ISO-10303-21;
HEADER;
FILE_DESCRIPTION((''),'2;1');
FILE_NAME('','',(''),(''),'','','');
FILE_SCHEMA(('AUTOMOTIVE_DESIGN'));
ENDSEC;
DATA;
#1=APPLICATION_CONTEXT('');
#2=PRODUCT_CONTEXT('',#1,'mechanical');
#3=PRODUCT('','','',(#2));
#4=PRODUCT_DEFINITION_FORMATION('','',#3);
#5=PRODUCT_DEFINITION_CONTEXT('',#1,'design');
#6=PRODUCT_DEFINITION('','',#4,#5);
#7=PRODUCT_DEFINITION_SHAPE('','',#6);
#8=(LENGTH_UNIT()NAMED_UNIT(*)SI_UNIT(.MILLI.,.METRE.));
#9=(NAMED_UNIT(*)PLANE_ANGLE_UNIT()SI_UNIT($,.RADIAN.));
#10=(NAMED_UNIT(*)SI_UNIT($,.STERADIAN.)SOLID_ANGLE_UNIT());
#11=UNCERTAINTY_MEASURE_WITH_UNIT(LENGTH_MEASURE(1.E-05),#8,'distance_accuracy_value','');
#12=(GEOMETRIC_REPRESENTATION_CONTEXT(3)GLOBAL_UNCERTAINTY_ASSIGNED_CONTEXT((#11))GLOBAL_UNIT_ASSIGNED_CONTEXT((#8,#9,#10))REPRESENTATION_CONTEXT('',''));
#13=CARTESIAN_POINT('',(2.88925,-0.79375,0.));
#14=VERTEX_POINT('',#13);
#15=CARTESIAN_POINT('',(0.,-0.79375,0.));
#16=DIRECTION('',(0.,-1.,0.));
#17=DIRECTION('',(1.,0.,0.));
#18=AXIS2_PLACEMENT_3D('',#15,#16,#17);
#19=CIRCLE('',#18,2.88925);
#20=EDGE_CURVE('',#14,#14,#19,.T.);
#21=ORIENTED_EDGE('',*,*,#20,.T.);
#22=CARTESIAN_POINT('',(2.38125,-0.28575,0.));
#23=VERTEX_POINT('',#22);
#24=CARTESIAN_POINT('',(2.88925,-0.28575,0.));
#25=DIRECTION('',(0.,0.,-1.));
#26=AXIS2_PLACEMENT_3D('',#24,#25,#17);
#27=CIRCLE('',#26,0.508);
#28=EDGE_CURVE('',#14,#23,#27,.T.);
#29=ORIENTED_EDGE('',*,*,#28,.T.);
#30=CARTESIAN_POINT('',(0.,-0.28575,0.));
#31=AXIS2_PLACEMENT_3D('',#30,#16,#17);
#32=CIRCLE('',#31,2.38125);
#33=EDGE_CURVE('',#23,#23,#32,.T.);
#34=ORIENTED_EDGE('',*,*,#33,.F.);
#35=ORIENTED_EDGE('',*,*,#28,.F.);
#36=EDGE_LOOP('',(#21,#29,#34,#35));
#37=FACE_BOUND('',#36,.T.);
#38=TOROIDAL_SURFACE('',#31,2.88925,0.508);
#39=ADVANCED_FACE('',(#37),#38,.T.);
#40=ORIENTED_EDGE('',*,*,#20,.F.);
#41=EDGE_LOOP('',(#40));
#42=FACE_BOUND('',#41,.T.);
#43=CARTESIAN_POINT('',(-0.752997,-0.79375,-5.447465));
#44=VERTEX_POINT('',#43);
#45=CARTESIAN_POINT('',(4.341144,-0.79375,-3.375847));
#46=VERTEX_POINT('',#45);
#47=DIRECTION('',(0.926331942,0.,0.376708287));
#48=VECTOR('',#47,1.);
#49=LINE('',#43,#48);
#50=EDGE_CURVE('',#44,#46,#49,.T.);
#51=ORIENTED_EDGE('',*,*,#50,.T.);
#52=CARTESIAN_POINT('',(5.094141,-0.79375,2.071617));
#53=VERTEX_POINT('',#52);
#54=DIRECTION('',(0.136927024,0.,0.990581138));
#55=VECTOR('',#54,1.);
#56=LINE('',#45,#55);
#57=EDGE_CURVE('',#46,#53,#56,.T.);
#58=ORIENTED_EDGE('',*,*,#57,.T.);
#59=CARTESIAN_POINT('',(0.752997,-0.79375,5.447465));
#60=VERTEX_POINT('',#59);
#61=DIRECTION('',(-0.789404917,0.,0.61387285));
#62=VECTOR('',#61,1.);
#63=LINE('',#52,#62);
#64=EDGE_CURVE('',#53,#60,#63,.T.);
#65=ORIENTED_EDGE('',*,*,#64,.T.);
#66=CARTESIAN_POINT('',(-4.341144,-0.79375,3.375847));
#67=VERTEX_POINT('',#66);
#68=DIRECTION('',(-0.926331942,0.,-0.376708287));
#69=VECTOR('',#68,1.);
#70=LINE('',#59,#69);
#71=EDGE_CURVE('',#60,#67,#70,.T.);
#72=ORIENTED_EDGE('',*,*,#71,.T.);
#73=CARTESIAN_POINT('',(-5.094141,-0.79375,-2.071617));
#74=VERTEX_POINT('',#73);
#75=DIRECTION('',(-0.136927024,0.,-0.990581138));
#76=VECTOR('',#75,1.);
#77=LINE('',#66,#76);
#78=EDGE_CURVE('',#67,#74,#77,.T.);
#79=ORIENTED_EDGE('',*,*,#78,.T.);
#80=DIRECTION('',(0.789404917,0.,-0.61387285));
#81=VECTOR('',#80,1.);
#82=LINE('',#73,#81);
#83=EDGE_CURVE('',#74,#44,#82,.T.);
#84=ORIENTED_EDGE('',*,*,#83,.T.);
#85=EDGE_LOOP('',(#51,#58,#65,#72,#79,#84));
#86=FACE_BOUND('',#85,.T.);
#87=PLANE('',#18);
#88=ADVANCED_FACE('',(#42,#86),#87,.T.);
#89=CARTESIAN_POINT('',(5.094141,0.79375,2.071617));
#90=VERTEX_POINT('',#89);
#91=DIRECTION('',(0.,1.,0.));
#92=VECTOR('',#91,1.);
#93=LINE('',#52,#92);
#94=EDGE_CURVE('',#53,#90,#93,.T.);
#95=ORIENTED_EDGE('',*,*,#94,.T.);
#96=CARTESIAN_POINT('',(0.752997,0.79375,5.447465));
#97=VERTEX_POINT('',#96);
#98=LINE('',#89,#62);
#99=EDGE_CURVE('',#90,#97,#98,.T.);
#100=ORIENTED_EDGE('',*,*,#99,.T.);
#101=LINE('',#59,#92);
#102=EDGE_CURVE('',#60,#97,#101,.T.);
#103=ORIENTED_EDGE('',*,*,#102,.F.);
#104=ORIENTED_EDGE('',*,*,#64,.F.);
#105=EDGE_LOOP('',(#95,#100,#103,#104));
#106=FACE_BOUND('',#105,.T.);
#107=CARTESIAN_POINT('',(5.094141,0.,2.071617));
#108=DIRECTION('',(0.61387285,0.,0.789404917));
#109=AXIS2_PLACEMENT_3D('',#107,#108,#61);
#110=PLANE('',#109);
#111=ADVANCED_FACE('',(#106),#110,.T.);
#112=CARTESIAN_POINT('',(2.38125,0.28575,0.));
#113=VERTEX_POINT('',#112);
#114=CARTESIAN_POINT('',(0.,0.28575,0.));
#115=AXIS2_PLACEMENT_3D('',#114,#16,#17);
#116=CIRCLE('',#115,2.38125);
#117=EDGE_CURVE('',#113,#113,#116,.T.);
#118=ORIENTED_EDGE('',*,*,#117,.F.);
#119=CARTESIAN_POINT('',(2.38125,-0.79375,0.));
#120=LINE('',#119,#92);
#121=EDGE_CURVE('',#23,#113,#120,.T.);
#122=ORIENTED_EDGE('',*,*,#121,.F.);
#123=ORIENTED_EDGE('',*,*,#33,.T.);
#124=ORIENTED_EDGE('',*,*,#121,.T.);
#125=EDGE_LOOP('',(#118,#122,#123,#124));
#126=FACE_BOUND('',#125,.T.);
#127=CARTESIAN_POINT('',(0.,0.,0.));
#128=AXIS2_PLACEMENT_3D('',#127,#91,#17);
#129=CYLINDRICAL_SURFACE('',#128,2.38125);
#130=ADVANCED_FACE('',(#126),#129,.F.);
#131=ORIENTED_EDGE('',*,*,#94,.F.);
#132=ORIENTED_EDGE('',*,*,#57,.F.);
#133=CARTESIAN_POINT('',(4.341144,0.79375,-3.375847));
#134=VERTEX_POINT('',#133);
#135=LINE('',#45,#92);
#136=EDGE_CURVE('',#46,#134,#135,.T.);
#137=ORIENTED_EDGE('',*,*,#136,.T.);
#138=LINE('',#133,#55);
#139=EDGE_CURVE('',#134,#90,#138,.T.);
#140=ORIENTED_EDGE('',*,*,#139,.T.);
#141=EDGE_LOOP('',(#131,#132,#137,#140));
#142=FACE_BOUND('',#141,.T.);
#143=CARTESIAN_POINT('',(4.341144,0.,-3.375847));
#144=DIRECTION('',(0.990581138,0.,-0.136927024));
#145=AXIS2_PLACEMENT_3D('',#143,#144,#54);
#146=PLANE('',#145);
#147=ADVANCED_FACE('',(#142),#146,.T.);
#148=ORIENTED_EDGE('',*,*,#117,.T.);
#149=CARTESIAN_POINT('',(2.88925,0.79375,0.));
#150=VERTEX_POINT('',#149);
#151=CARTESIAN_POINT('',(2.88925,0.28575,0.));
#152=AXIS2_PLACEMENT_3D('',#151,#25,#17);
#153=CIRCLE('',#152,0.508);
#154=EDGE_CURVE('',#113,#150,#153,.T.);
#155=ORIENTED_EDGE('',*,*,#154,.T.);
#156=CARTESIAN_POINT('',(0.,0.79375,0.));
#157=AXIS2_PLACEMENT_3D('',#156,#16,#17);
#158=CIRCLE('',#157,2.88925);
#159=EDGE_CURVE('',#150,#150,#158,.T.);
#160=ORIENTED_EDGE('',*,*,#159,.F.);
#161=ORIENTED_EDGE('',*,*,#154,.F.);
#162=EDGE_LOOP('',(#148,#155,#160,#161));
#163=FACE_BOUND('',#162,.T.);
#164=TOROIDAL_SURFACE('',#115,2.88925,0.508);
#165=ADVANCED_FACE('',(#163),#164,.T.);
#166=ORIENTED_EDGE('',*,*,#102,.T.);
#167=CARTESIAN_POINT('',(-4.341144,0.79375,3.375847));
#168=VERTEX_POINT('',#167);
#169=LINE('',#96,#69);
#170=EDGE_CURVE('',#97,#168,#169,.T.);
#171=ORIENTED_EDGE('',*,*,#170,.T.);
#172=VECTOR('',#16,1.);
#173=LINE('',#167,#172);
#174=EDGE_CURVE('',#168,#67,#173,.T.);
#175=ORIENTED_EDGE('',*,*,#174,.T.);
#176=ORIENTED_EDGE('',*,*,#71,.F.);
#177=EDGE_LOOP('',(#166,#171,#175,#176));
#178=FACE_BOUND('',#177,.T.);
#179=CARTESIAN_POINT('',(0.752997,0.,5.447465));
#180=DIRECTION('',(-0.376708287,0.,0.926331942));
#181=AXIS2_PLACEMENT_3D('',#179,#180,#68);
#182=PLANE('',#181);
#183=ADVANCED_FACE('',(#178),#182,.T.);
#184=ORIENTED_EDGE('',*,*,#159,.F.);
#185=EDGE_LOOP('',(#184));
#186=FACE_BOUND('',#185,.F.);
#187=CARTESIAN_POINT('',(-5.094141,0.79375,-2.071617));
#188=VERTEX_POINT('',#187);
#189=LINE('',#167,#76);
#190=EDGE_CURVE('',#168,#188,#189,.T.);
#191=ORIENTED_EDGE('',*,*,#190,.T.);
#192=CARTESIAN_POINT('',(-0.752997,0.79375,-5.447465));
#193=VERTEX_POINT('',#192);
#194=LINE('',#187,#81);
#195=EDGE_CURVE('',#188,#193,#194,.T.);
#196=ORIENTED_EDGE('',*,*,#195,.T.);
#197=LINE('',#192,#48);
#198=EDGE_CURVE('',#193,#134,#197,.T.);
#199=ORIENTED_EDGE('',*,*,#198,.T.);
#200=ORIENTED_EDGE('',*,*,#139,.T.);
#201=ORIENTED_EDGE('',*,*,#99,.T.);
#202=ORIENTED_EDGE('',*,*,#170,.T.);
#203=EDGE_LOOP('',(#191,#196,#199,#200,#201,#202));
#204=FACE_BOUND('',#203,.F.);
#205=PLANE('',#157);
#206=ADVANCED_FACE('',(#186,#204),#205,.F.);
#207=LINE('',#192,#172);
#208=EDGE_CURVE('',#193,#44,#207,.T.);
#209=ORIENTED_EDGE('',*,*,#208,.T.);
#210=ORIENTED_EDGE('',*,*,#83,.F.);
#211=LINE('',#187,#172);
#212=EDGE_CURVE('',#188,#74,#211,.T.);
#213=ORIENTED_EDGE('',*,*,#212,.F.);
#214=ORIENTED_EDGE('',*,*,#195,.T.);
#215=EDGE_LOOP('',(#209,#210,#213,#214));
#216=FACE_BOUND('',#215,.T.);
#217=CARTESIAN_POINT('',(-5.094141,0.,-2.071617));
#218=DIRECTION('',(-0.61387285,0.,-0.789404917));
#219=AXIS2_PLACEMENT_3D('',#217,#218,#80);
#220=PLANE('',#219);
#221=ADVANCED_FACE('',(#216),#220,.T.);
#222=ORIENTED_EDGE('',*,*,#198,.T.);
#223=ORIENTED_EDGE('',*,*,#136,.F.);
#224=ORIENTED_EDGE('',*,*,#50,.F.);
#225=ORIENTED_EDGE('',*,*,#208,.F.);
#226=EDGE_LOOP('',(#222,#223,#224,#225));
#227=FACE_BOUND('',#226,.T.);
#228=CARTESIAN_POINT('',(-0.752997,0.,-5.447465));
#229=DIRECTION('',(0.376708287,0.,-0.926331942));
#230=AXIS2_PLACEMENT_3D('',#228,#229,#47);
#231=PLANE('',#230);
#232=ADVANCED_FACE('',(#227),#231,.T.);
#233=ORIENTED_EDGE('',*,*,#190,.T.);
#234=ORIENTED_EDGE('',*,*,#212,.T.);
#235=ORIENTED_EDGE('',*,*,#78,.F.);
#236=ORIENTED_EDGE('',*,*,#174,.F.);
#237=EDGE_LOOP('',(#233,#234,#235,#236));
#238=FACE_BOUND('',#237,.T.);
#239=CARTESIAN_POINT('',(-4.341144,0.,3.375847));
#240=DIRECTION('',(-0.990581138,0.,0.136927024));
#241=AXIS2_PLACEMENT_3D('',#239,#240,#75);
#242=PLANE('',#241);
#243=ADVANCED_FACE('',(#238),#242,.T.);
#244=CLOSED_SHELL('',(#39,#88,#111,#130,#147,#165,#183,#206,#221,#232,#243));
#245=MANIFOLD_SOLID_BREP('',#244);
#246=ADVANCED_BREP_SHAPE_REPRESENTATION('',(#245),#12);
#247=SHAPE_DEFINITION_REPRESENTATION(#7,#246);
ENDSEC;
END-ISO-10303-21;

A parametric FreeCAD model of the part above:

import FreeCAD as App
import Part
import Sketcher
from FreeCAD import Vector
Q = App.Units.Quantity


def edges_at(feature, points):
    """Names of the edges that pass closest to the given points."""
    edges = feature.Shape.Edges
    near = lambda p: min(range(len(edges)), key=lambda i: edges[i].distToShape(Part.Vertex(*p))[0])
    return sorted({f"Edge{near(p) + 1}" for p in points})


def add_polygon(sketch, points):
    """Adds a closed chain of lines whose ends are joined by coincident constraints."""
    first, n = sketch.GeometryCount, len(points)
    for a, b in zip(points, points[1:] + points[:1]):
        sketch.addGeometry(Part.LineSegment(App.Vector(*a, 0), App.Vector(*b, 0)), False)
    for i in range(n):
        sketch.addConstraint(Sketcher.Constraint("Coincident", first + i, 2, first + (i + 1) % n, 1))

doc = App.newDocument("Part")
body = doc.addObject("PartDesign::Body", "Body")

# Sketch on XZ plane
sketch1 = body.newObject("Sketcher::SketchObject", "Sketch")
sketch1.AttachmentSupport = (doc.getObject("XZ_Plane"), [""])
sketch1.MapMode = "FlatFace"
add_polygon(sketch1, [(0.752997, 5.447465), (-4.341144, 3.375847), (-5.094141, -2.071617), (-0.752997, -5.447465), (4.341144, -3.375847), (5.094141, 2.071617)])  # lines 0-5
sketch1.addGeometry(Part.Circle(Vector(0, 0, 0), Vector(0, 0, 1), 2.38125), False)  # 6
sketch1.addConstraint([
    Sketcher.Constraint("Coincident", 6, 3, -1, 1),
    Sketcher.Constraint("Symmetric", 0, 2, 3, 2, -1, 1),
    Sketcher.Constraint("Symmetric", 1, 2, 4, 2, -1, 1),
    Sketcher.Constraint("Symmetric", 2, 2, 5, 2, -1, 1),
    Sketcher.Constraint("Equal", 0, 1),
    Sketcher.Constraint("Equal", 1, 2),
    Sketcher.Constraint("Diameter", 6, Q("0.1875 in")),
    Sketcher.Constraint("Distance", 0, Q("5.499261 mm")),
    Sketcher.Constraint("DistanceX", 1, 2, -1, 1, Q("5.094141 mm")),
    Sketcher.Constraint("DistanceY", 2, 2, 0, 2, Q("8.823312 mm")),
    Sketcher.Constraint("DistanceX", 2, 2, 3, 2, Q("5.094141 mm")),
])
pad1 = body.newObject("PartDesign::Pad", "Pad")
pad1.Profile = sketch1
pad1.Length = Q("0.0625 in")
pad1.Midplane = True
doc.recompute()

fillet = body.newObject("PartDesign::Fillet", "Fillet")
fillet.Base = (pad1, edges_at(pad1, [(-2.381, -0.794, 0)]))
fillet.Radius = Q("0.02 in")
doc.recompute()

fillet2 = body.newObject("PartDesign::Fillet", "Fillet001")
fillet2.Base = (fillet, edges_at(fillet, [(-2.381, 0.794, 0)]))
fillet2.Radius = Q("0.02 in")

doc.recompute()
